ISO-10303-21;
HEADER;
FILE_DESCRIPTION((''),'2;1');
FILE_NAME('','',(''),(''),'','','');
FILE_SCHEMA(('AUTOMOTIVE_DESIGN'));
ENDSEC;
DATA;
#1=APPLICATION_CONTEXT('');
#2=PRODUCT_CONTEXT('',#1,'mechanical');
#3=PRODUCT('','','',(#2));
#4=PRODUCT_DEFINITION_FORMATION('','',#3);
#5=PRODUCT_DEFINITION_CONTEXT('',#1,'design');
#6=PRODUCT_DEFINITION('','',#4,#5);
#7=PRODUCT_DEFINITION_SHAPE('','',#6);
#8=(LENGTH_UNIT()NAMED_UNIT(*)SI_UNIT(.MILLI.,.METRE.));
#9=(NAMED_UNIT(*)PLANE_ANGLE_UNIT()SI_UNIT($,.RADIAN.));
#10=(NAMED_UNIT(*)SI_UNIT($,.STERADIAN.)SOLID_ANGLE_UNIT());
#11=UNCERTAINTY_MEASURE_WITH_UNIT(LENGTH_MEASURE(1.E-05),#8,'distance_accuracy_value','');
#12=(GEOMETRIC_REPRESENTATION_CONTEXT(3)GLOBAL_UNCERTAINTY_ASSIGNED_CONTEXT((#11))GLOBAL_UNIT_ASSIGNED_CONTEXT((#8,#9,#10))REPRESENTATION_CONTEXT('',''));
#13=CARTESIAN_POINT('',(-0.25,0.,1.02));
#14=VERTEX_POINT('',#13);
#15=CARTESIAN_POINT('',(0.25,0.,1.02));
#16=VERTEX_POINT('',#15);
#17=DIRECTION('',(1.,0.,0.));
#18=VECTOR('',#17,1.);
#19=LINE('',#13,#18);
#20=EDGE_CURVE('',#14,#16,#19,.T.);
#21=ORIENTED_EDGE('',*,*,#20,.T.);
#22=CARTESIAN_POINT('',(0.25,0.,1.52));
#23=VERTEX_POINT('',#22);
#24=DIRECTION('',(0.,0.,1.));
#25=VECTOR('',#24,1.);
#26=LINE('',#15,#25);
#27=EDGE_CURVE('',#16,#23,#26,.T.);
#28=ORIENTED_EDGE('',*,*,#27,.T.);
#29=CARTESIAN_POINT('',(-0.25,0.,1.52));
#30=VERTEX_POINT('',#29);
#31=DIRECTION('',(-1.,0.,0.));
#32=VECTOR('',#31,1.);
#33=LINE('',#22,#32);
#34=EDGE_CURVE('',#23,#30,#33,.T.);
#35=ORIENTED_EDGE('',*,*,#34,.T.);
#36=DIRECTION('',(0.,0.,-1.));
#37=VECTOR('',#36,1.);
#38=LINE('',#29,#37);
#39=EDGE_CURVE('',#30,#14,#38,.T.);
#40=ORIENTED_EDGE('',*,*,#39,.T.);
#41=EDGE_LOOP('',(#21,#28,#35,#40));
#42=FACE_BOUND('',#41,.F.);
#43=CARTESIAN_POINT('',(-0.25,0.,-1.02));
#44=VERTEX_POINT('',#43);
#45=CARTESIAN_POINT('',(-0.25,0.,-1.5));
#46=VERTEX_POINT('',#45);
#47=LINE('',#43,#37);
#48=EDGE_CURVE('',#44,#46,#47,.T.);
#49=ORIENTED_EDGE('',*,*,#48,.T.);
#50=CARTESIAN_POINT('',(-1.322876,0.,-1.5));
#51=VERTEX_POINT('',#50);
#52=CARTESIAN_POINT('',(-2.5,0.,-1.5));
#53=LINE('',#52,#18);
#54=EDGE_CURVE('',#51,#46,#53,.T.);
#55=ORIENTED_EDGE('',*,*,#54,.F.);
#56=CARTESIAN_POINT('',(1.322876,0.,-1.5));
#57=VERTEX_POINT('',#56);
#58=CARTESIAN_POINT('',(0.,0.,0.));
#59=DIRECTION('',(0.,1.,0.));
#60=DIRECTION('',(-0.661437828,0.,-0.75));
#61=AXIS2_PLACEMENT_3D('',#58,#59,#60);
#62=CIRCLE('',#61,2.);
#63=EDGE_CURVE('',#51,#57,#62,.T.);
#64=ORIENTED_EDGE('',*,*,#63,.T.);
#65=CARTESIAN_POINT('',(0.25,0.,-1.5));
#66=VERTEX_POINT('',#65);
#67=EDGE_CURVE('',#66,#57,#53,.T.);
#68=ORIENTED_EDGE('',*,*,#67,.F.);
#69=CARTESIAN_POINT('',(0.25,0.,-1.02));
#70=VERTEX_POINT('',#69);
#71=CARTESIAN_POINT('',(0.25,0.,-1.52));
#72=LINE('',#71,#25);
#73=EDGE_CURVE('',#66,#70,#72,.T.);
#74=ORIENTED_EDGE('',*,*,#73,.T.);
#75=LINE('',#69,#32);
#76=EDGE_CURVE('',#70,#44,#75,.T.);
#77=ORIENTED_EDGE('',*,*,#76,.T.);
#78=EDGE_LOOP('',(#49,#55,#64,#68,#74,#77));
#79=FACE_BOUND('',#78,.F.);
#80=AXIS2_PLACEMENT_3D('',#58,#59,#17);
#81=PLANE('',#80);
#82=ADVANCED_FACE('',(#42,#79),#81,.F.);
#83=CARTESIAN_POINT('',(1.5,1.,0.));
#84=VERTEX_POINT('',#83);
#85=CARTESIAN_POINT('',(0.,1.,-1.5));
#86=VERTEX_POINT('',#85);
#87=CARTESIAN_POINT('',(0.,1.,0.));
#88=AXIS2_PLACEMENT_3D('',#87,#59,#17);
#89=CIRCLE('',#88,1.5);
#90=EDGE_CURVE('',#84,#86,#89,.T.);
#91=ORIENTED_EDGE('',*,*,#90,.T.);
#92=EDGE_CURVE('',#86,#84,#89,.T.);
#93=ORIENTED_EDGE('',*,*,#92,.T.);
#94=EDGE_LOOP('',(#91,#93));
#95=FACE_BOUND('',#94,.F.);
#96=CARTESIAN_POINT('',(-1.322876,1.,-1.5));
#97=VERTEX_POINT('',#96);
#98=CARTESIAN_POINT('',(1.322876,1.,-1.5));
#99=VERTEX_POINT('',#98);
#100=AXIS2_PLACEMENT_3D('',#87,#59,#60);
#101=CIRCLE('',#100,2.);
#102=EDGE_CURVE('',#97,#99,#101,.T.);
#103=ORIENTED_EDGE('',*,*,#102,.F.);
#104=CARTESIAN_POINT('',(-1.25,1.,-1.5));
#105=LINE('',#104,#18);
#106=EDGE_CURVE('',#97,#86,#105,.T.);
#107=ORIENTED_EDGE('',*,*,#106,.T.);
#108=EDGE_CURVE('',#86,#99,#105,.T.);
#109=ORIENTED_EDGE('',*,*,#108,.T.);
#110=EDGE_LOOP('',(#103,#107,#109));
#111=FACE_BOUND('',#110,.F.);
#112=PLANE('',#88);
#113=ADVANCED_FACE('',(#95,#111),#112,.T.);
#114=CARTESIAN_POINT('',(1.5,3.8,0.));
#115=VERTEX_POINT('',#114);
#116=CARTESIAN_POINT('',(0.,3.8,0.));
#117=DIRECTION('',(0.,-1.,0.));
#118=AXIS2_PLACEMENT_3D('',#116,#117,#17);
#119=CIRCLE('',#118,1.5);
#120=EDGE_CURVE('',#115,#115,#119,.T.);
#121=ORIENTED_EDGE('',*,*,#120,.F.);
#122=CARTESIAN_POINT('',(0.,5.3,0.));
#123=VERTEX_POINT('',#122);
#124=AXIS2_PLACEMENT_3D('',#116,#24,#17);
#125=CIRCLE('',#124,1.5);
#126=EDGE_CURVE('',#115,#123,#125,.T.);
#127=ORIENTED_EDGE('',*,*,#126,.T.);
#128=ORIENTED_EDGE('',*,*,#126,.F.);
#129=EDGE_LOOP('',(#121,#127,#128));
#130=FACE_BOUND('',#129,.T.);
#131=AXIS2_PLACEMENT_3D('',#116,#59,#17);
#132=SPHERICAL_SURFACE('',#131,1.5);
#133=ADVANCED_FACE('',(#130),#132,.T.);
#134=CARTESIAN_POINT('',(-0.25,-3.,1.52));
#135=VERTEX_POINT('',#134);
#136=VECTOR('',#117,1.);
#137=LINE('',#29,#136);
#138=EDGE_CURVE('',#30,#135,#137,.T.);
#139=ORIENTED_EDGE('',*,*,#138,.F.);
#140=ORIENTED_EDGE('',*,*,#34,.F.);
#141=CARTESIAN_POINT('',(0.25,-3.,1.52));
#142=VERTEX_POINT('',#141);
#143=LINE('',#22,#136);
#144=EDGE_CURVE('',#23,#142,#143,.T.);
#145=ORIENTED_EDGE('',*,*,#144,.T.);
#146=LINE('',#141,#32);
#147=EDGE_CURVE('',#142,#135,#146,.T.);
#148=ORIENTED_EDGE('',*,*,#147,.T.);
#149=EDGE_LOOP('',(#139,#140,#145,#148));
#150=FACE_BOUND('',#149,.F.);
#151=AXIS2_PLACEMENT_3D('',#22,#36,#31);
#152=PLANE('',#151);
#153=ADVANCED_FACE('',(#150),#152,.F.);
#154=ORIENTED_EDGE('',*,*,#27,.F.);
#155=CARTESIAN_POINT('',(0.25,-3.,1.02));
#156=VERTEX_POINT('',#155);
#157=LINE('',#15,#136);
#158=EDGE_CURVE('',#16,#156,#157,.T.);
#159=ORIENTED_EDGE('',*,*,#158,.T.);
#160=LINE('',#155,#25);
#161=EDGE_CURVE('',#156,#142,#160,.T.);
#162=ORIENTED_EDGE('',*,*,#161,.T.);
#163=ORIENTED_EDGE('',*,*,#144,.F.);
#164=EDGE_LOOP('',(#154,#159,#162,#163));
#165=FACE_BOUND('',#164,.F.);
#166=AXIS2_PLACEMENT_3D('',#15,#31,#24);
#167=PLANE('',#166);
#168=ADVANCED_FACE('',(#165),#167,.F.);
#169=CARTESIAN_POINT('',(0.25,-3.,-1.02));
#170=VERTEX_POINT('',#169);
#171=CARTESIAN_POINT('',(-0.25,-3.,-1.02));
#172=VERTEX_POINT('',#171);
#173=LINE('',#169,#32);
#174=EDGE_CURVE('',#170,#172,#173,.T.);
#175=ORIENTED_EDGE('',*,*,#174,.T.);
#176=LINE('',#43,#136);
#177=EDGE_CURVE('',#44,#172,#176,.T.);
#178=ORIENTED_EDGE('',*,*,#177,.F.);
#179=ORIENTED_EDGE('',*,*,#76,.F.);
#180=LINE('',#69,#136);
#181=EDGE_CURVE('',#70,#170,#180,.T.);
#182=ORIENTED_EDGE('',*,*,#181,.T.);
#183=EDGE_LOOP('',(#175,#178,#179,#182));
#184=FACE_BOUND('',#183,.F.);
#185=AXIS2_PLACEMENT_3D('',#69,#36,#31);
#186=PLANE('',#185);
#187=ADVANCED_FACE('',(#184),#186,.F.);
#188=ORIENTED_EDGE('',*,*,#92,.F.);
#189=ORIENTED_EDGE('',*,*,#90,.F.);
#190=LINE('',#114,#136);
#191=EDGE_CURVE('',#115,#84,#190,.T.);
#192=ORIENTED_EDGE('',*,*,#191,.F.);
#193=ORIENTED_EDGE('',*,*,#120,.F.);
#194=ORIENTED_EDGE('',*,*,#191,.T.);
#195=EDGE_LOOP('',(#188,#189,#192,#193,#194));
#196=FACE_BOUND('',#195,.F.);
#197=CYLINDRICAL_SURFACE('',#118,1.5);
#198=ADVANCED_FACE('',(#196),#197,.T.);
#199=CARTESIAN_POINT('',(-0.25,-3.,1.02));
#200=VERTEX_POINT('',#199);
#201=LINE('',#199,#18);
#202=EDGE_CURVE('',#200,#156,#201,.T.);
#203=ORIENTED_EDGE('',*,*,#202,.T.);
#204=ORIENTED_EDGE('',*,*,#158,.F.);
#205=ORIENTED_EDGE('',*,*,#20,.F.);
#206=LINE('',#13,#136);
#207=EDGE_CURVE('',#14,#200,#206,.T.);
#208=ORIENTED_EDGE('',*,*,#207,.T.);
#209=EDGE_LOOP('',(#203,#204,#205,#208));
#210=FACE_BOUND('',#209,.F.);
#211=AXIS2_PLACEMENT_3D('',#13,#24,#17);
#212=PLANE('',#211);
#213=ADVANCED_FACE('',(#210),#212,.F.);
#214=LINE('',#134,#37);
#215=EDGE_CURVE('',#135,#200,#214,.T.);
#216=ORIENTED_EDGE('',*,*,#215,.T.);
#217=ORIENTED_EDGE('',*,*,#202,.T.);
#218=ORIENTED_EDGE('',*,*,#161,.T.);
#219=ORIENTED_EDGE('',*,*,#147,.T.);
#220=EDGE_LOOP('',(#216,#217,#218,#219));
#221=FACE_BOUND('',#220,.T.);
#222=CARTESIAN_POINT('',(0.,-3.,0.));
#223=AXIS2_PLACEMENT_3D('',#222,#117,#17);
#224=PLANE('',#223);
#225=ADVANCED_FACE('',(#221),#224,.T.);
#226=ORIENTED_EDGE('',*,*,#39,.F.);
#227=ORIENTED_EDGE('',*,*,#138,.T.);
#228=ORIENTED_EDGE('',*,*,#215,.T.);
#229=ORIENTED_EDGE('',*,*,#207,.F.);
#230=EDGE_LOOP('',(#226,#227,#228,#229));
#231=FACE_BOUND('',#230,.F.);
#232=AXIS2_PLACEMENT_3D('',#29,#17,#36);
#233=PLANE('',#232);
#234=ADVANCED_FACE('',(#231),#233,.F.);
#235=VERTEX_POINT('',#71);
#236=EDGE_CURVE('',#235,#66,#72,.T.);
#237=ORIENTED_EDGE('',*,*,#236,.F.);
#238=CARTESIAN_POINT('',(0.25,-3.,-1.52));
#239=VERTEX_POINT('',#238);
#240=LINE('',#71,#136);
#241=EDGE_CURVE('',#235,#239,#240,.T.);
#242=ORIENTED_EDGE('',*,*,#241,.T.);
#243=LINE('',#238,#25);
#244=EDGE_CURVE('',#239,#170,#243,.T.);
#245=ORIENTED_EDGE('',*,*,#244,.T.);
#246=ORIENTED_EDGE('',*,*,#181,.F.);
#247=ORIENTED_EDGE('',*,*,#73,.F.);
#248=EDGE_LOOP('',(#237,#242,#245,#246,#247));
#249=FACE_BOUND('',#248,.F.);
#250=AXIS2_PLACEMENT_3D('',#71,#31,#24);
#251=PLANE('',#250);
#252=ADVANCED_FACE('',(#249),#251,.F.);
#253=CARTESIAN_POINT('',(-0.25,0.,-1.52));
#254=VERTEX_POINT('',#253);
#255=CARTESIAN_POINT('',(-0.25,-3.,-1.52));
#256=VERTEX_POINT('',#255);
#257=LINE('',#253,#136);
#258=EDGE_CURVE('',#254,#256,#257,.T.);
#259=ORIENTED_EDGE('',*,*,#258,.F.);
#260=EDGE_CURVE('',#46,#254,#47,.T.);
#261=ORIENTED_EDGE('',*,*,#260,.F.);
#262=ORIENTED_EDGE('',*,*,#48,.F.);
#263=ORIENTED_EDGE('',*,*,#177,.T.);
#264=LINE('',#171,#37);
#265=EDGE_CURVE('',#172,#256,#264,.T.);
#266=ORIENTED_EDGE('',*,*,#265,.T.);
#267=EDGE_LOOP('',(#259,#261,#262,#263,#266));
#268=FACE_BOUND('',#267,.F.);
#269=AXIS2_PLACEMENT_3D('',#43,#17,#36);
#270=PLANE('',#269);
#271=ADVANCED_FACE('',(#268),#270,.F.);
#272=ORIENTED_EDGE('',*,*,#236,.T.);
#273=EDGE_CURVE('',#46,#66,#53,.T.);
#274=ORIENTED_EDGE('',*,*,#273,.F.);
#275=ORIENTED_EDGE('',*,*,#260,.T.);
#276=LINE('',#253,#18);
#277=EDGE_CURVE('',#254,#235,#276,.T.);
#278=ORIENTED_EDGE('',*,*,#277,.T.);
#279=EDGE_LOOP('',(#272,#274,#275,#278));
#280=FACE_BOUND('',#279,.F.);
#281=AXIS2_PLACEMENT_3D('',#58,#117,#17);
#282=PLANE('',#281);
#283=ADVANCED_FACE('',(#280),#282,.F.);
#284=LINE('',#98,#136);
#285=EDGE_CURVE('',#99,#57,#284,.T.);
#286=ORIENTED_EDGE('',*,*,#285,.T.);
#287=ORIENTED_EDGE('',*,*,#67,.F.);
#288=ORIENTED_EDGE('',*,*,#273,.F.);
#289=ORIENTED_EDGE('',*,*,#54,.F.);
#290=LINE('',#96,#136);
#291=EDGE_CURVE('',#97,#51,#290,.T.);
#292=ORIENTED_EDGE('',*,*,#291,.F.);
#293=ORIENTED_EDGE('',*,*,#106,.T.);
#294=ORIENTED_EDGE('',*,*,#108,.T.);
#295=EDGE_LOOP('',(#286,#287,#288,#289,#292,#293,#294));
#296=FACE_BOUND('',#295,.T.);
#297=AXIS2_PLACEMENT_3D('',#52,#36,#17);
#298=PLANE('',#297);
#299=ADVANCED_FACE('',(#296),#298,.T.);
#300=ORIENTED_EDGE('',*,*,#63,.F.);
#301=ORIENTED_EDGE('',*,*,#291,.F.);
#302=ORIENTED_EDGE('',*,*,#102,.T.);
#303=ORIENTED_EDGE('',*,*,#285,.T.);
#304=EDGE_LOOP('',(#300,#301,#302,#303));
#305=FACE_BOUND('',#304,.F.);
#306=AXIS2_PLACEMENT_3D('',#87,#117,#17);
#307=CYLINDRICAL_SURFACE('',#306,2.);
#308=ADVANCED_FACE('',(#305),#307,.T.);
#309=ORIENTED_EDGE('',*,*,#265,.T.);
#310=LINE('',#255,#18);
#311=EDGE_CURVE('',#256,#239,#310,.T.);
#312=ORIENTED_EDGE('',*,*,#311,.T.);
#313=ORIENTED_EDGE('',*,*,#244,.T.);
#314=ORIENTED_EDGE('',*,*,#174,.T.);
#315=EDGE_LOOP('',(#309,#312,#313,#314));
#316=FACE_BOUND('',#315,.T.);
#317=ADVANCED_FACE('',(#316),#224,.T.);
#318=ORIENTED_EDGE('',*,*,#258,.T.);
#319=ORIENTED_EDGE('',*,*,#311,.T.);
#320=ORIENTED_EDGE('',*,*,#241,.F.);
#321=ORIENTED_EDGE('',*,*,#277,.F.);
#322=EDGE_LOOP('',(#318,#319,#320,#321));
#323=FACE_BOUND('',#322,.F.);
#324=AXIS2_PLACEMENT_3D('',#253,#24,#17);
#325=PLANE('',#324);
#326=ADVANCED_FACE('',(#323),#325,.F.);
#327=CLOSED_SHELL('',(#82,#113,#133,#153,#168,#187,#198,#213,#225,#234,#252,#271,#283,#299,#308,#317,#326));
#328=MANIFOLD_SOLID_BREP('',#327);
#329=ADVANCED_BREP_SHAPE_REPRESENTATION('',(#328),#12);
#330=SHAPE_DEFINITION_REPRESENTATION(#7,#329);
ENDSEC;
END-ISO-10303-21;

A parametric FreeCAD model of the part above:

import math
import FreeCAD as App
import Part
import Sketcher
from FreeCAD import Vector
Q = App.Units.Quantity

doc = App.newDocument("Part")
body = doc.addObject("PartDesign::Body", "Body")

# Sketch on XY plane
sketch1 = body.newObject("Sketcher::SketchObject", "Sketch")
sketch1.AttachmentSupport = (doc.getObject("XY_Plane"), [""])
sketch1.MapMode = "FlatFace"
sketch1.addGeometry([
    Part.LineSegment(Vector(1.5, 1, 0), Vector(1.5, 3.8, 0)),  # 0
    Part.ArcOfCircle(Part.Circle(Vector(0, 3.8, 0), Vector(0, 0, 1), 1.5), math.radians(0), math.radians(90)),  # 1
    Part.LineSegment(Vector(0, 5.3, 0), Vector(0, 0, 0)),  # 2
    Part.LineSegment(Vector(0, 0, 0), Vector(2, 0, 0)),  # 3
    Part.LineSegment(Vector(2, 0, 0), Vector(2, 1, 0)),  # 4
    Part.LineSegment(Vector(2, 1, 0), Vector(1.5, 1, 0)),  # 5
], False)
sketch1.addConstraint([
    Sketcher.Constraint("Tangent", 0, 2, 1, 1),
    Sketcher.Constraint("Coincident", 1, 2, 2, 1),
    Sketcher.Constraint("Coincident", 2, 2, 3, 1),
    Sketcher.Constraint("Coincident", 3, 2, 4, 1),
    Sketcher.Constraint("Coincident", 4, 2, 5, 1),
    Sketcher.Constraint("Coincident", 5, 2, 0, 1),
    Sketcher.Constraint("Vertical", 0),
    Sketcher.Constraint("Vertical", 2),
    Sketcher.Constraint("Horizontal", 3),
    Sketcher.Constraint("Vertical", 4),
    Sketcher.Constraint("Horizontal", 5),
    Sketcher.Constraint("Coincident", 2, 2, -1, 1),
    Sketcher.Constraint("PointOnObject", 1, 3, -2),
    Sketcher.Constraint("Radius", 1, Q("1.5 mm")),
    Sketcher.Constraint("DistanceX", 3, 1, 3, 2, Q("2 mm")),
    Sketcher.Constraint("DistanceY", 4, 1, 4, 2, Q("1 mm")),
    Sketcher.Constraint("DistanceY", 2, 2, 2, 1, Q("5.3 mm")),
])
revolution = body.newObject("PartDesign::Revolution", "Revolution")
revolution.Profile = sketch1
revolution.ReferenceAxis = (sketch1, ["V_Axis"])
revolution.Angle = 360

# Sketch on XZ plane
sketch2 = body.newObject("Sketcher::SketchObject", "Sketch001")
sketch2.AttachmentSupport = (doc.getObject("XZ_Plane"), [""])
sketch2.MapMode = "FlatFace"
sketch2.addGeometry([
    Part.LineSegment(Vector(2.5, -1.5, 0), Vector(2.5, -4.5, 0)),
    Part.LineSegment(Vector(2.5, -4.5, 0), Vector(-2.5, -4.5, 0)),
    Part.LineSegment(Vector(-2.5, -4.5, 0), Vector(-2.5, -1.5, 0)),
    Part.LineSegment(Vector(-2.5, -1.5, 0), Vector(2.5, -1.5, 0)),
], False)
sketch2.addConstraint([
    Sketcher.Constraint("Coincident", 0, 2, 1, 1),
    Sketcher.Constraint("Coincident", 1, 2, 2, 1),
    Sketcher.Constraint("Coincident", 2, 2, 3, 1),
    Sketcher.Constraint("Coincident", 3, 2, 0, 1),
    Sketcher.Constraint("Vertical", 0),
    Sketcher.Constraint("Horizontal", 1),
    Sketcher.Constraint("Vertical", 2),
    Sketcher.Constraint("Horizontal", 3),
    Sketcher.Constraint("DistanceX", 1, 2, 1, 1, Q("5 mm")),
    Sketcher.Constraint("DistanceY", 0, 2, 0, 1, Q("3 mm")),
    Sketcher.Constraint("DistanceX", -1, 1, 0, 2, Q("2.5 mm")),
    Sketcher.Constraint("DistanceY", 2, 2, -1, 1, Q("1.5 mm")),
])
pocket1 = body.newObject("PartDesign::Pocket", "Pocket")
pocket1.Profile = sketch2
pocket1.Length = 10

# Sketch on XZ plane
sketch3 = body.newObject("Sketcher::SketchObject", "Sketch002")
sketch3.AttachmentSupport = (doc.getObject("XZ_Plane"), [""])
sketch3.MapMode = "FlatFace"
sketch3.addGeometry([
    Part.LineSegment(Vector(-0.2, -1, 0), Vector(-0.2, -1.5, 0)),  # 0
    Part.LineSegment(Vector(-0.2, -1.5, 0), Vector(0.2, -1.5, 0)),  # 1
    Part.LineSegment(Vector(0.2, -1.5, 0), Vector(0.2, -1, 0)),  # 2
    Part.LineSegment(Vector(0.2, -1, 0), Vector(-0.2, -1, 0)),  # 3
    Part.LineSegment(Vector(-0.2, 1.5, 0), Vector(-0.2, 1, 0)),  # 4
    Part.LineSegment(Vector(-0.2, 1, 0), Vector(0.2, 1, 0)),  # 5
    Part.LineSegment(Vector(0.2, 1, 0), Vector(0.2, 1.5, 0)),  # 6
    Part.LineSegment(Vector(0.2, 1.5, 0), Vector(-0.2, 1.5, 0)),  # 7
], False)
sketch3.addConstraint([
    Sketcher.Constraint("Coincident", 0, 2, 1, 1),
    Sketcher.Constraint("Coincident", 1, 2, 2, 1),
    Sketcher.Constraint("Coincident", 2, 2, 3, 1),
    Sketcher.Constraint("Coincident", 3, 2, 0, 1),
    Sketcher.Constraint("Coincident", 4, 2, 5, 1),
    Sketcher.Constraint("Coincident", 5, 2, 6, 1),
    Sketcher.Constraint("Coincident", 6, 2, 7, 1),
    Sketcher.Constraint("Coincident", 7, 2, 4, 1),
    Sketcher.Constraint("Vertical", 0),
    Sketcher.Constraint("Horizontal", 1),
    Sketcher.Constraint("Vertical", 2),
    Sketcher.Constraint("Horizontal", 3),
    Sketcher.Constraint("Vertical", 4),
    Sketcher.Constraint("Horizontal", 5),
    Sketcher.Constraint("Vertical", 6),
    Sketcher.Constraint("Horizontal", 7),
    Sketcher.Constraint("Symmetric", 2, 2, 4, 2, -1, 1),
    Sketcher.Constraint("Symmetric", 0, 2, 6, 2, -1, 1),
    Sketcher.Constraint("Vertical", 3, 2, 4, 2),
    Sketcher.Constraint("Equal", 7, 0),
    Sketcher.Constraint("DistanceX", 1, 1, 1, 2, Q("0.5 mm")),
    Sketcher.Constraint("DistanceY", 0, 2, 4, 2, Q("2.54 mm")),
])
pad1 = body.newObject("PartDesign::Pad", "Pad")
pad1.Profile = sketch3
pad1.Length = 3

doc.recompute()
